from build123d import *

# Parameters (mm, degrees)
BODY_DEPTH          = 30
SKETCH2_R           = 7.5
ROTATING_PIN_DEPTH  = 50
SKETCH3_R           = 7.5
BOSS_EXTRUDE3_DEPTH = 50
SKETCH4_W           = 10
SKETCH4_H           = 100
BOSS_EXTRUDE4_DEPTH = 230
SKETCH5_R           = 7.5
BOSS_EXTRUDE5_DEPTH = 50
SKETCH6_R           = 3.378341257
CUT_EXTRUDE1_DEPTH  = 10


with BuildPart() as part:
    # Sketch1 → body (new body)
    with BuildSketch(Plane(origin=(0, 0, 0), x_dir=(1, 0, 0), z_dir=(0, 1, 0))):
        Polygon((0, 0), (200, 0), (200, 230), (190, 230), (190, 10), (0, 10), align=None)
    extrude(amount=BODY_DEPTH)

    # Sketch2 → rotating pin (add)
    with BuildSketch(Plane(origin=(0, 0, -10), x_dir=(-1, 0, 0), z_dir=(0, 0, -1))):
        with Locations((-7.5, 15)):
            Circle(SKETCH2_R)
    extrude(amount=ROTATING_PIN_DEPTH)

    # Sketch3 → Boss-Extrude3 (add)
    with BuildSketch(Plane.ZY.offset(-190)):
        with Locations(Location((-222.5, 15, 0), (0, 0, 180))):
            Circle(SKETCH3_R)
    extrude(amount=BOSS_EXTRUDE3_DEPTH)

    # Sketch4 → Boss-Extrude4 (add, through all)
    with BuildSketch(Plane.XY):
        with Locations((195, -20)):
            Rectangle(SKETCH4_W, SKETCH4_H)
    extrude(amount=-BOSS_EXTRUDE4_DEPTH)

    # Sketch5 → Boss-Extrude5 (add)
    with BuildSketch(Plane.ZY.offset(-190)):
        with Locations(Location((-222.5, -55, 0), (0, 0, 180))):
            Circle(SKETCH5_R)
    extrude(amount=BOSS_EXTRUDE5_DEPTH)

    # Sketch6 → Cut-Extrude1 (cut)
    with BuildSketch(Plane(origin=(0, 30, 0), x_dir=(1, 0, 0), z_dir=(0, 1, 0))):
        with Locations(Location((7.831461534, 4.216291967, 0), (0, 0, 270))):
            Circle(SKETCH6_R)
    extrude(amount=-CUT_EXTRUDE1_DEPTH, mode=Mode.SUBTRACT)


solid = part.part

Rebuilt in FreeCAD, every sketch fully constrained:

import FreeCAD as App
import Part
import Sketcher

V = App.Vector
Q = App.Units.Quantity

doc = App.newDocument("Part")
body = doc.addObject("PartDesign::Body", "Body")

# Sketch on XZ plane
sketch1 = body.newObject("Sketcher::SketchObject", "Sketch")
sketch1.AttachmentSupport = (doc.getObject("XZ_Plane"), [""])
sketch1.MapMode = "FlatFace"
sketch1.addGeometry([
    Part.LineSegment(V(0, 0, 0), V(200, 0, 0)),  # 0
    Part.LineSegment(V(200, 0, 0), V(200, -230, 0)),  # 1
    Part.LineSegment(V(200, -230, 0), V(190, -230, 0)),  # 2
    Part.LineSegment(V(190, -230, 0), V(190, -10, 0)),  # 3
    Part.LineSegment(V(190, -10, 0), V(0, -10, 0)),  # 4
    Part.LineSegment(V(0, -10, 0), V(0, 0, 0)),  # 5
], False)
sketch1.addConstraint([
    Sketcher.Constraint("Coincident", 0, 2, 1, 1),
    Sketcher.Constraint("Coincident", 1, 2, 2, 1),
    Sketcher.Constraint("Coincident", 2, 2, 3, 1),
    Sketcher.Constraint("Coincident", 3, 2, 4, 1),
    Sketcher.Constraint("Coincident", 4, 2, 5, 1),
    Sketcher.Constraint("Coincident", 5, 2, 0, 1),
    Sketcher.Constraint("Horizontal", 0),
    Sketcher.Constraint("Vertical", 1),
    Sketcher.Constraint("Horizontal", 2),
    Sketcher.Constraint("Vertical", 3),
    Sketcher.Constraint("Horizontal", 4),
    Sketcher.Constraint("Vertical", 5),
    Sketcher.Constraint("Coincident", 5, 2, -1, 1),
    Sketcher.Constraint("Equal", 2, 5),
    Sketcher.Constraint("DistanceX", 0, 1, 0, 2, Q("200 mm")),
    Sketcher.Constraint("DistanceX", 2, 2, 2, 1, Q("10 mm")),
    Sketcher.Constraint("DistanceY", 1, 2, 1, 1, Q("230 mm")),
])
pad1 = body.newObject("PartDesign::Pad", "Pad")
pad1.Profile = sketch1
pad1.Length = 30
pad1.Reversed = True

# Sketch on XY plane
sketch2 = body.newObject("Sketcher::SketchObject", "Sketch001")
sketch2.AttachmentSupport = (doc.getObject("XY_Plane"), [""])
sketch2.MapMode = "FlatFace"
sketch2.AttachmentOffset = App.Placement(V(0, 0, -10), App.Rotation())
sketch2.addGeometry(Part.Circle(V(8, 15, 0), V(0, 0, 1), 8), False)
sketch2.addConstraint([
    Sketcher.Constraint("Diameter", 0, Q("15 mm")),
    Sketcher.Constraint("DistanceY", -1, 1, 0, 3, Q("15 mm")),
    Sketcher.Constraint("DistanceX", -1, 1, 0, 3, Q("7.5 mm")),
])
pad2 = body.newObject("PartDesign::Pad", "Pad001")
pad2.Profile = sketch2
pad2.Length = 50
pad2.Reversed = True

# Sketch on YZ plane
sketch3 = body.newObject("Sketcher::SketchObject", "Sketch002")
sketch3.AttachmentSupport = (doc.getObject("YZ_Plane"), [""])
sketch3.MapMode = "FlatFace"
sketch3.AttachmentOffset = App.Placement(V(0, 0, 190), App.Rotation())
sketch3.addGeometry(Part.Circle(V(15, -222, 0), V(0, 0, 1), 8), False)
sketch3.addConstraint([
    Sketcher.Constraint("Diameter", 0, Q("15 mm")),
    Sketcher.Constraint("DistanceX", -1, 1, 0, 3, Q("15 mm")),
    Sketcher.Constraint("DistanceY", 0, 3, -1, 1, Q("222.5 mm")),
])
pad3 = body.newObject("PartDesign::Pad", "Pad002")
pad3.Profile = sketch3
pad3.Length = 50
pad3.Reversed = True

# Sketch on XY plane
sketch4 = body.newObject("Sketcher::SketchObject", "Sketch003")
sketch4.AttachmentSupport = (doc.getObject("XY_Plane"), [""])
sketch4.MapMode = "FlatFace"
sketch4.addGeometry([
    Part.LineSegment(V(190, 30, 0), V(190, -70, 0)),
    Part.LineSegment(V(190, -70, 0), V(200, -70, 0)),
    Part.LineSegment(V(200, -70, 0), V(200, 30, 0)),
    Part.LineSegment(V(200, 30, 0), V(190, 30, 0)),
], False)
sketch4.addConstraint([
    Sketcher.Constraint("Coincident", 0, 2, 1, 1),
    Sketcher.Constraint("Coincident", 1, 2, 2, 1),
    Sketcher.Constraint("Coincident", 2, 2, 3, 1),
    Sketcher.Constraint("Coincident", 3, 2, 0, 1),
    Sketcher.Constraint("Vertical", 0),
    Sketcher.Constraint("Horizontal", 1),
    Sketcher.Constraint("Vertical", 2),
    Sketcher.Constraint("Horizontal", 3),
    Sketcher.Constraint("DistanceX", 1, 1, 1, 2, Q("10 mm")),
    Sketcher.Constraint("DistanceY", 0, 2, 0, 1, Q("100 mm")),
    Sketcher.Constraint("DistanceX", -1, 1, 0, 2, Q("190 mm")),
    Sketcher.Constraint("DistanceY", 0, 2, -1, 1, Q("70 mm")),
])
pad4 = body.newObject("PartDesign::Pad", "Pad003")
pad4.Profile = sketch4
pad4.Length = 230
pad4.Reversed = True

# Sketch on YZ plane
sketch5 = body.newObject("Sketcher::SketchObject", "Sketch004")
sketch5.AttachmentSupport = (doc.getObject("YZ_Plane"), [""])
sketch5.MapMode = "FlatFace"
sketch5.AttachmentOffset = App.Placement(V(0, 0, 190), App.Rotation())
sketch5.addGeometry(Part.Circle(V(-55, -222, 0), V(0, 0, 1), 8), False)
sketch5.addConstraint([
    Sketcher.Constraint("Diameter", 0, Q("15 mm")),
    Sketcher.Constraint("DistanceX", 0, 3, -1, 1, Q("55 mm")),
    Sketcher.Constraint("DistanceY", 0, 3, -1, 1, Q("222.5 mm")),
])
pad5 = body.newObject("PartDesign::Pad", "Pad004")
pad5.Profile = sketch5
pad5.Length = 50
pad5.Reversed = True

# Sketch on XZ plane
sketch6 = body.newObject("Sketcher::SketchObject", "Sketch005")
sketch6.AttachmentSupport = (doc.getObject("XZ_Plane"), [""])
sketch6.MapMode = "FlatFace"
sketch6.AttachmentOffset = App.Placement(V(0, 0, -30), App.Rotation())
sketch6.addGeometry(Part.Circle(V(7.8, -4.2, 0), V(0, 0, 1), 3.4), False)
sketch6.addConstraint([
    Sketcher.Constraint("Diameter", 0, Q("6.756683 mm")),
    Sketcher.Constraint("DistanceX", -1, 1, 0, 3, Q("7.831462 mm")),
    Sketcher.Constraint("DistanceY", 0, 3, -1, 1, Q("4.216292 mm")),
])
pocket1 = body.newObject("PartDesign::Pocket", "Pocket")
pocket1.Profile = sketch6
pocket1.Length = 10
pocket1.Reversed = True

doc.recompute()
